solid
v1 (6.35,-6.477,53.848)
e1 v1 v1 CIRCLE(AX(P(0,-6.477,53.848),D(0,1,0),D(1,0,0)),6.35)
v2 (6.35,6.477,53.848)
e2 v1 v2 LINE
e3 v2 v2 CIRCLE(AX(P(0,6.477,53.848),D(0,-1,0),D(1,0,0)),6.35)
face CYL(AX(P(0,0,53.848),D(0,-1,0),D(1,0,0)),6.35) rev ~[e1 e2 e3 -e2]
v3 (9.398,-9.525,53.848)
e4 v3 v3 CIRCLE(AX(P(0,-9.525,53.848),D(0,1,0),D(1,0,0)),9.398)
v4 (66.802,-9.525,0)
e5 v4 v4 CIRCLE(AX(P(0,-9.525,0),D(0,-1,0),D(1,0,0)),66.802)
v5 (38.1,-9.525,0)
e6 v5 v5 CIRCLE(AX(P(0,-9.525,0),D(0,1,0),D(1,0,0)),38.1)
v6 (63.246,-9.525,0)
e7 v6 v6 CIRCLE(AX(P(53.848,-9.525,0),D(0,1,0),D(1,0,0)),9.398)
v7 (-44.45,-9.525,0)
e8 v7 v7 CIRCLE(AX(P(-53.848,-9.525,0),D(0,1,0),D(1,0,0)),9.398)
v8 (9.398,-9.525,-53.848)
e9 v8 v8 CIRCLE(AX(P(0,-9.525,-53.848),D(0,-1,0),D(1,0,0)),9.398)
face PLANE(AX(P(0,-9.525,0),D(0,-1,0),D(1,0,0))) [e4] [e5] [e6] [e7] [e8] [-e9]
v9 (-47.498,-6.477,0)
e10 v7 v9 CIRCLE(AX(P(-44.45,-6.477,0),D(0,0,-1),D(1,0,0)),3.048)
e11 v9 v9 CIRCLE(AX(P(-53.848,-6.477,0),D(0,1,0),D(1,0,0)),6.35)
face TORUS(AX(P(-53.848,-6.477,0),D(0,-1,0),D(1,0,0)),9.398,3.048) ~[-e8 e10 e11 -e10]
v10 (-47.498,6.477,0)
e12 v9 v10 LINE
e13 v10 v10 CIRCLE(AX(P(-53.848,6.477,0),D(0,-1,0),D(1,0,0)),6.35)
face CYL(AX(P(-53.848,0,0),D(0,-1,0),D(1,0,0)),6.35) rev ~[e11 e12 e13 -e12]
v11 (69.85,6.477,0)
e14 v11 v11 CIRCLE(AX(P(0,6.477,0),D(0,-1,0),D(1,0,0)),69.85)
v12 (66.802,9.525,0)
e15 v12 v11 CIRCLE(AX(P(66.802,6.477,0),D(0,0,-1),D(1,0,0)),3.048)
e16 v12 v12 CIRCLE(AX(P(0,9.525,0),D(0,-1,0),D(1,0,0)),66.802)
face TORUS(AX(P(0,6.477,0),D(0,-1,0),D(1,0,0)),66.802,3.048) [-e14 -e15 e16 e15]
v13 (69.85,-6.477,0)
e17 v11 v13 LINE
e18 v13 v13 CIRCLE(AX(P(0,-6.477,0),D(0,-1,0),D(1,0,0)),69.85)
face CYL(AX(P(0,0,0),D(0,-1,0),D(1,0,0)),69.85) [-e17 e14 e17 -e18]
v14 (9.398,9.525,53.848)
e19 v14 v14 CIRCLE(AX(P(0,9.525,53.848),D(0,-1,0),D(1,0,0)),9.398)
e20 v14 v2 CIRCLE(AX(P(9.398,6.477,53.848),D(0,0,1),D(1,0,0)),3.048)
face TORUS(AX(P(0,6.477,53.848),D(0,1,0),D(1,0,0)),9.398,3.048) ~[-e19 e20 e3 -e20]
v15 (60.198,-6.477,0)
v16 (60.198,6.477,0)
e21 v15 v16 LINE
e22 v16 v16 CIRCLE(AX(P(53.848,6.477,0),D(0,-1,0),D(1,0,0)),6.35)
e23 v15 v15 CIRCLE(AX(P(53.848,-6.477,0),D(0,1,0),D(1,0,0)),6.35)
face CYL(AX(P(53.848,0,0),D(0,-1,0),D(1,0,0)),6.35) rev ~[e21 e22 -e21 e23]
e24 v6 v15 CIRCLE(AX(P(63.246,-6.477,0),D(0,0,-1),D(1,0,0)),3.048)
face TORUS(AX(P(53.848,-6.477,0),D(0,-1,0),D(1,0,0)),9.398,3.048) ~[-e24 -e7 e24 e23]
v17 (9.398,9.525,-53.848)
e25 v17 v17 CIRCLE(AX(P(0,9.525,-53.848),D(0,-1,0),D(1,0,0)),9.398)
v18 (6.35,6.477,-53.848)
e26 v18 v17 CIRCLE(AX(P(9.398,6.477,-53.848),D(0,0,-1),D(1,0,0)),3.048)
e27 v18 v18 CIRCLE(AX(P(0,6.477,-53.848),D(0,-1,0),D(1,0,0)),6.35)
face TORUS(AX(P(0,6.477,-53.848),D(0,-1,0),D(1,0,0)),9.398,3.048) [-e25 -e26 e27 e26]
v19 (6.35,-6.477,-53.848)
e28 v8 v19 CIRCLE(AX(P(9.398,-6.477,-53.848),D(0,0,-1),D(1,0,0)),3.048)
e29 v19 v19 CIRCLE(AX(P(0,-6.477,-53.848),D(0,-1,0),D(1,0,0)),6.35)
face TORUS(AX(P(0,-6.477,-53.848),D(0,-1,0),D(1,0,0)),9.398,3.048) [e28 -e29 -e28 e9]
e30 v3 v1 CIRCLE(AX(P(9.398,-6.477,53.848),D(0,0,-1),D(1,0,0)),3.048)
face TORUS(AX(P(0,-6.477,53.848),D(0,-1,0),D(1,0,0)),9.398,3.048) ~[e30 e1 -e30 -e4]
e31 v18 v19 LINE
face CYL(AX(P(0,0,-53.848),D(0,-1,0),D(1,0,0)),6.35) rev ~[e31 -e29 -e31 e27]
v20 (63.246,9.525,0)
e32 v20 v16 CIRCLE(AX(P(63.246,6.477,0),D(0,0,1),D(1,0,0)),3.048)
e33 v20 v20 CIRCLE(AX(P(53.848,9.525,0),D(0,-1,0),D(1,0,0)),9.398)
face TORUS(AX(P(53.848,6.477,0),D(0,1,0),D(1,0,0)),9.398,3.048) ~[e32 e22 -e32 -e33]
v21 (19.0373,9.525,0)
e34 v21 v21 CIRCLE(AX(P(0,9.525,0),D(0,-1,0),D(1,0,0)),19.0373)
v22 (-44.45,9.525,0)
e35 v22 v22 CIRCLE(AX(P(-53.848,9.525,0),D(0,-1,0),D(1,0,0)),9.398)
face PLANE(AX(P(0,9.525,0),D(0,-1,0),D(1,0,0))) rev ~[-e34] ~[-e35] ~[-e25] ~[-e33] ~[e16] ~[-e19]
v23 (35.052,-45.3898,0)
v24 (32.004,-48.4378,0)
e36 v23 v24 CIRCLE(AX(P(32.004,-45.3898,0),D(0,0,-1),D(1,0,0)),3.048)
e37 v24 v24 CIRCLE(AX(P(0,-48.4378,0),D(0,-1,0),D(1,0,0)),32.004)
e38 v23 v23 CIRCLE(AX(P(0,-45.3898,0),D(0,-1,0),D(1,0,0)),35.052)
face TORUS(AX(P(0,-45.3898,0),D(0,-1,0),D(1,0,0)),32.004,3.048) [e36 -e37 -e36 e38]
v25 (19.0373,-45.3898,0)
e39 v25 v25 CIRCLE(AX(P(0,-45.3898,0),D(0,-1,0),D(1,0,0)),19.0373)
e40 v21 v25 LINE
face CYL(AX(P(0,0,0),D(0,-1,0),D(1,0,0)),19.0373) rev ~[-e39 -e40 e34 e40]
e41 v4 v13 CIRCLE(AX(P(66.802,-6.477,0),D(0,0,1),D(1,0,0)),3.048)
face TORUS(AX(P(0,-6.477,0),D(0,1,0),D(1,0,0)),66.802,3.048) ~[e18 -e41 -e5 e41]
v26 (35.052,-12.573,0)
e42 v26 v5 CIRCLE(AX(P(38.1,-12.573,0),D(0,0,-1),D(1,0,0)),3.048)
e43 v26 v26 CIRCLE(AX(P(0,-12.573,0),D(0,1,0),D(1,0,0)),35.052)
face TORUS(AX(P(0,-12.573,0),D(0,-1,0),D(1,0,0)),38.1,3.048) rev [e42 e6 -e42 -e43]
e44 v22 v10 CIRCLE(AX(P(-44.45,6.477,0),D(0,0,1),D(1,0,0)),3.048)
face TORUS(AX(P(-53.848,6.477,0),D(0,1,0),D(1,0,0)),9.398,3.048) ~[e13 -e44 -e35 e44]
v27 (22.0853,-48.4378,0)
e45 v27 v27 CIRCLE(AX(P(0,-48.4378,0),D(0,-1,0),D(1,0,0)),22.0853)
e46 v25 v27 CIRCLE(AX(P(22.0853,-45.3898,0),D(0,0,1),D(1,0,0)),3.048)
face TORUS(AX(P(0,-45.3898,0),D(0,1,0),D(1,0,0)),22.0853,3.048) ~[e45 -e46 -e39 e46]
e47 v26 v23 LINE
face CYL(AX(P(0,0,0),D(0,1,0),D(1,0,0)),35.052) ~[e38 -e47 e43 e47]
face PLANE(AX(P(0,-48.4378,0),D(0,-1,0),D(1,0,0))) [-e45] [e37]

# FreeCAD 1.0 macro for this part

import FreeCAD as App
import Part
import Sketcher
from FreeCAD import Vector
Q = App.Units.Quantity


def edges_at(feature, points):
    """Names of the edges that pass closest to the given points."""
    edges = feature.Shape.Edges
    near = lambda p: min(range(len(edges)), key=lambda i: edges[i].distToShape(Part.Vertex(*p))[0])
    return sorted({f"Edge{near(p) + 1}" for p in points})

doc = App.newDocument("Part")
body = doc.addObject("PartDesign::Body", "Body")

sketch1 = body.newObject("Sketcher::SketchObject", "Sketch")
sketch1.AttachmentSupport = (doc.getObject("XZ_Plane"), [""])
sketch1.MapMode = "FlatFace"
sketch1.addGeometry(Part.Circle(Vector(0, 0, 0), Vector(0, 0, 1), 69.85), False)
sketch1.addConstraint(Sketcher.Constraint("Coincident", 0, 3, -1, 1))
sketch1.addConstraint(Sketcher.Constraint("Diameter", 0, Q("5.5 in")))
pad1 = body.newObject("PartDesign::Pad", "Pad")
pad1.Profile = sketch1
pad1.Length = Q("0.75 in")
pad1.Midplane = True

sketch2 = body.newObject("Sketcher::SketchObject", "Sketch001")
sketch2.AttachmentSupport = (doc.getObject("XZ_Plane"), [""])
sketch2.MapMode = "FlatFace"
sketch2.addGeometry(Part.Circle(Vector(0, 0, 0), Vector(0, 0, 1), 35.052), False)
sketch2.addConstraint(Sketcher.Constraint("Coincident", 0, 3, -1, 1))
sketch2.addConstraint(Sketcher.Constraint("Diameter", 0, Q("2.76 in")))
pad2 = body.newObject("PartDesign::Pad", "Pad001")
pad2.Profile = sketch2
pad2.Type = "TwoLengths"
pad2.Length = 5.4085
pad2.Length2 = Q("1.907 in")
pad2.Reversed = True
doc.recompute()

fillet = body.newObject("PartDesign::Fillet", "Fillet")
fillet.Base = (pad2, edges_at(pad2, [(-35.052, -9.525, 0)]))
fillet.Radius = Q("0.12 in")

sketch3 = body.newObject("Sketcher::SketchObject", "Sketch002")
sketch3.AttachmentSupport = (doc.getObject("XZ_Plane"), [""])
sketch3.MapMode = "FlatFace"
sketch3.addGeometry(Part.Circle(Vector(0, 53.848, 0), Vector(0, 0, 1), 6.35), False)
sketch3.addGeometry(Part.Circle(Vector(53.848, 0, 0), Vector(0, 0, 1), 6.35), False)
sketch3.addGeometry(Part.Circle(Vector(-53.848, 0, 0), Vector(0, 0, 1), 6.35), False)
sketch3.addGeometry(Part.Circle(Vector(0, -53.848, 0), Vector(0, 0, 1), 6.35), False)
sketch3.addConstraint(Sketcher.Constraint("Equal", 0, 1))
sketch3.addConstraint(Sketcher.Constraint("Equal", 1, 2))
sketch3.addConstraint(Sketcher.Constraint("Equal", 2, 3))
sketch3.addConstraint(Sketcher.Constraint("Symmetric", 1, 3, 2, 3, -1, 1))
sketch3.addConstraint(Sketcher.Constraint("Symmetric", 0, 3, 3, 3, -1, 1))
sketch3.addConstraint(Sketcher.Constraint("PointOnObject", 0, 3, -2))
sketch3.addConstraint(Sketcher.Constraint("PointOnObject", 1, 3, -1))
sketch3.addConstraint(Sketcher.Constraint("Diameter", 0, Q("0.5 in")))
sketch3.addConstraint(Sketcher.Constraint("DistanceY", -1, 1, 0, 3, Q("2.12 in")))
sketch3.addConstraint(Sketcher.Constraint("DistanceX", -1, 1, 1, 3, Q("2.12 in")))
pocket1 = body.newObject("PartDesign::Pocket", "Pocket")
pocket1.Profile = sketch3
pocket1.Length = Q("2 in")
pocket1.Midplane = True
doc.recompute()

fillet2 = body.newObject("PartDesign::Fillet", "Fillet001")
fillet2.Base = (pocket1, edges_at(pocket1, [
    (-60.198, -9.525, 0),
    (-6.35, -9.525, 53.848),
    (47.498, -9.525, 0),
    (-6.35, -9.525, -53.848),
    (47.498, 9.525, 0),
    (-6.35, 9.525, 53.848),
    (-60.198, 9.525, 0),
    (-6.35, 9.525, -53.848),
]))
fillet2.Radius = Q("0.12 in")

sketch4 = body.newObject("Sketcher::SketchObject", "Sketch003")
sketch4.AttachmentSupport = (doc.getObject("XZ_Plane"), [""])
sketch4.MapMode = "FlatFace"
sketch4.addGeometry(Part.Circle(Vector(0, 0, 0), Vector(0, 0, 1), 19.0373), False)
sketch4.addConstraint(Sketcher.Constraint("Coincident", 0, 3, -1, 1))
sketch4.addConstraint(Sketcher.Constraint("Diameter", 0, Q("1.499 in")))
pocket2 = body.newObject("PartDesign::Pocket", "Pocket001")
pocket2.Profile = sketch4
pocket2.Length = Q("4 in")
pocket2.Midplane = True
doc.recompute()

fillet3 = body.newObject("PartDesign::Fillet", "Fillet002")
fillet3.Base = (pocket2, edges_at(pocket2, [(-19.037, -48.438, 0)]))
fillet3.Radius = Q("0.12 in")
doc.recompute()

fillet4 = body.newObject("PartDesign::Fillet", "Fillet003")
fillet4.Base = (fillet3, edges_at(fillet3, [(-35.052, -48.438, 0), (-69.85, -9.525, 0), (-69.85, 9.525, 0)]))
fillet4.Radius = Q("0.12 in")

doc.recompute()
